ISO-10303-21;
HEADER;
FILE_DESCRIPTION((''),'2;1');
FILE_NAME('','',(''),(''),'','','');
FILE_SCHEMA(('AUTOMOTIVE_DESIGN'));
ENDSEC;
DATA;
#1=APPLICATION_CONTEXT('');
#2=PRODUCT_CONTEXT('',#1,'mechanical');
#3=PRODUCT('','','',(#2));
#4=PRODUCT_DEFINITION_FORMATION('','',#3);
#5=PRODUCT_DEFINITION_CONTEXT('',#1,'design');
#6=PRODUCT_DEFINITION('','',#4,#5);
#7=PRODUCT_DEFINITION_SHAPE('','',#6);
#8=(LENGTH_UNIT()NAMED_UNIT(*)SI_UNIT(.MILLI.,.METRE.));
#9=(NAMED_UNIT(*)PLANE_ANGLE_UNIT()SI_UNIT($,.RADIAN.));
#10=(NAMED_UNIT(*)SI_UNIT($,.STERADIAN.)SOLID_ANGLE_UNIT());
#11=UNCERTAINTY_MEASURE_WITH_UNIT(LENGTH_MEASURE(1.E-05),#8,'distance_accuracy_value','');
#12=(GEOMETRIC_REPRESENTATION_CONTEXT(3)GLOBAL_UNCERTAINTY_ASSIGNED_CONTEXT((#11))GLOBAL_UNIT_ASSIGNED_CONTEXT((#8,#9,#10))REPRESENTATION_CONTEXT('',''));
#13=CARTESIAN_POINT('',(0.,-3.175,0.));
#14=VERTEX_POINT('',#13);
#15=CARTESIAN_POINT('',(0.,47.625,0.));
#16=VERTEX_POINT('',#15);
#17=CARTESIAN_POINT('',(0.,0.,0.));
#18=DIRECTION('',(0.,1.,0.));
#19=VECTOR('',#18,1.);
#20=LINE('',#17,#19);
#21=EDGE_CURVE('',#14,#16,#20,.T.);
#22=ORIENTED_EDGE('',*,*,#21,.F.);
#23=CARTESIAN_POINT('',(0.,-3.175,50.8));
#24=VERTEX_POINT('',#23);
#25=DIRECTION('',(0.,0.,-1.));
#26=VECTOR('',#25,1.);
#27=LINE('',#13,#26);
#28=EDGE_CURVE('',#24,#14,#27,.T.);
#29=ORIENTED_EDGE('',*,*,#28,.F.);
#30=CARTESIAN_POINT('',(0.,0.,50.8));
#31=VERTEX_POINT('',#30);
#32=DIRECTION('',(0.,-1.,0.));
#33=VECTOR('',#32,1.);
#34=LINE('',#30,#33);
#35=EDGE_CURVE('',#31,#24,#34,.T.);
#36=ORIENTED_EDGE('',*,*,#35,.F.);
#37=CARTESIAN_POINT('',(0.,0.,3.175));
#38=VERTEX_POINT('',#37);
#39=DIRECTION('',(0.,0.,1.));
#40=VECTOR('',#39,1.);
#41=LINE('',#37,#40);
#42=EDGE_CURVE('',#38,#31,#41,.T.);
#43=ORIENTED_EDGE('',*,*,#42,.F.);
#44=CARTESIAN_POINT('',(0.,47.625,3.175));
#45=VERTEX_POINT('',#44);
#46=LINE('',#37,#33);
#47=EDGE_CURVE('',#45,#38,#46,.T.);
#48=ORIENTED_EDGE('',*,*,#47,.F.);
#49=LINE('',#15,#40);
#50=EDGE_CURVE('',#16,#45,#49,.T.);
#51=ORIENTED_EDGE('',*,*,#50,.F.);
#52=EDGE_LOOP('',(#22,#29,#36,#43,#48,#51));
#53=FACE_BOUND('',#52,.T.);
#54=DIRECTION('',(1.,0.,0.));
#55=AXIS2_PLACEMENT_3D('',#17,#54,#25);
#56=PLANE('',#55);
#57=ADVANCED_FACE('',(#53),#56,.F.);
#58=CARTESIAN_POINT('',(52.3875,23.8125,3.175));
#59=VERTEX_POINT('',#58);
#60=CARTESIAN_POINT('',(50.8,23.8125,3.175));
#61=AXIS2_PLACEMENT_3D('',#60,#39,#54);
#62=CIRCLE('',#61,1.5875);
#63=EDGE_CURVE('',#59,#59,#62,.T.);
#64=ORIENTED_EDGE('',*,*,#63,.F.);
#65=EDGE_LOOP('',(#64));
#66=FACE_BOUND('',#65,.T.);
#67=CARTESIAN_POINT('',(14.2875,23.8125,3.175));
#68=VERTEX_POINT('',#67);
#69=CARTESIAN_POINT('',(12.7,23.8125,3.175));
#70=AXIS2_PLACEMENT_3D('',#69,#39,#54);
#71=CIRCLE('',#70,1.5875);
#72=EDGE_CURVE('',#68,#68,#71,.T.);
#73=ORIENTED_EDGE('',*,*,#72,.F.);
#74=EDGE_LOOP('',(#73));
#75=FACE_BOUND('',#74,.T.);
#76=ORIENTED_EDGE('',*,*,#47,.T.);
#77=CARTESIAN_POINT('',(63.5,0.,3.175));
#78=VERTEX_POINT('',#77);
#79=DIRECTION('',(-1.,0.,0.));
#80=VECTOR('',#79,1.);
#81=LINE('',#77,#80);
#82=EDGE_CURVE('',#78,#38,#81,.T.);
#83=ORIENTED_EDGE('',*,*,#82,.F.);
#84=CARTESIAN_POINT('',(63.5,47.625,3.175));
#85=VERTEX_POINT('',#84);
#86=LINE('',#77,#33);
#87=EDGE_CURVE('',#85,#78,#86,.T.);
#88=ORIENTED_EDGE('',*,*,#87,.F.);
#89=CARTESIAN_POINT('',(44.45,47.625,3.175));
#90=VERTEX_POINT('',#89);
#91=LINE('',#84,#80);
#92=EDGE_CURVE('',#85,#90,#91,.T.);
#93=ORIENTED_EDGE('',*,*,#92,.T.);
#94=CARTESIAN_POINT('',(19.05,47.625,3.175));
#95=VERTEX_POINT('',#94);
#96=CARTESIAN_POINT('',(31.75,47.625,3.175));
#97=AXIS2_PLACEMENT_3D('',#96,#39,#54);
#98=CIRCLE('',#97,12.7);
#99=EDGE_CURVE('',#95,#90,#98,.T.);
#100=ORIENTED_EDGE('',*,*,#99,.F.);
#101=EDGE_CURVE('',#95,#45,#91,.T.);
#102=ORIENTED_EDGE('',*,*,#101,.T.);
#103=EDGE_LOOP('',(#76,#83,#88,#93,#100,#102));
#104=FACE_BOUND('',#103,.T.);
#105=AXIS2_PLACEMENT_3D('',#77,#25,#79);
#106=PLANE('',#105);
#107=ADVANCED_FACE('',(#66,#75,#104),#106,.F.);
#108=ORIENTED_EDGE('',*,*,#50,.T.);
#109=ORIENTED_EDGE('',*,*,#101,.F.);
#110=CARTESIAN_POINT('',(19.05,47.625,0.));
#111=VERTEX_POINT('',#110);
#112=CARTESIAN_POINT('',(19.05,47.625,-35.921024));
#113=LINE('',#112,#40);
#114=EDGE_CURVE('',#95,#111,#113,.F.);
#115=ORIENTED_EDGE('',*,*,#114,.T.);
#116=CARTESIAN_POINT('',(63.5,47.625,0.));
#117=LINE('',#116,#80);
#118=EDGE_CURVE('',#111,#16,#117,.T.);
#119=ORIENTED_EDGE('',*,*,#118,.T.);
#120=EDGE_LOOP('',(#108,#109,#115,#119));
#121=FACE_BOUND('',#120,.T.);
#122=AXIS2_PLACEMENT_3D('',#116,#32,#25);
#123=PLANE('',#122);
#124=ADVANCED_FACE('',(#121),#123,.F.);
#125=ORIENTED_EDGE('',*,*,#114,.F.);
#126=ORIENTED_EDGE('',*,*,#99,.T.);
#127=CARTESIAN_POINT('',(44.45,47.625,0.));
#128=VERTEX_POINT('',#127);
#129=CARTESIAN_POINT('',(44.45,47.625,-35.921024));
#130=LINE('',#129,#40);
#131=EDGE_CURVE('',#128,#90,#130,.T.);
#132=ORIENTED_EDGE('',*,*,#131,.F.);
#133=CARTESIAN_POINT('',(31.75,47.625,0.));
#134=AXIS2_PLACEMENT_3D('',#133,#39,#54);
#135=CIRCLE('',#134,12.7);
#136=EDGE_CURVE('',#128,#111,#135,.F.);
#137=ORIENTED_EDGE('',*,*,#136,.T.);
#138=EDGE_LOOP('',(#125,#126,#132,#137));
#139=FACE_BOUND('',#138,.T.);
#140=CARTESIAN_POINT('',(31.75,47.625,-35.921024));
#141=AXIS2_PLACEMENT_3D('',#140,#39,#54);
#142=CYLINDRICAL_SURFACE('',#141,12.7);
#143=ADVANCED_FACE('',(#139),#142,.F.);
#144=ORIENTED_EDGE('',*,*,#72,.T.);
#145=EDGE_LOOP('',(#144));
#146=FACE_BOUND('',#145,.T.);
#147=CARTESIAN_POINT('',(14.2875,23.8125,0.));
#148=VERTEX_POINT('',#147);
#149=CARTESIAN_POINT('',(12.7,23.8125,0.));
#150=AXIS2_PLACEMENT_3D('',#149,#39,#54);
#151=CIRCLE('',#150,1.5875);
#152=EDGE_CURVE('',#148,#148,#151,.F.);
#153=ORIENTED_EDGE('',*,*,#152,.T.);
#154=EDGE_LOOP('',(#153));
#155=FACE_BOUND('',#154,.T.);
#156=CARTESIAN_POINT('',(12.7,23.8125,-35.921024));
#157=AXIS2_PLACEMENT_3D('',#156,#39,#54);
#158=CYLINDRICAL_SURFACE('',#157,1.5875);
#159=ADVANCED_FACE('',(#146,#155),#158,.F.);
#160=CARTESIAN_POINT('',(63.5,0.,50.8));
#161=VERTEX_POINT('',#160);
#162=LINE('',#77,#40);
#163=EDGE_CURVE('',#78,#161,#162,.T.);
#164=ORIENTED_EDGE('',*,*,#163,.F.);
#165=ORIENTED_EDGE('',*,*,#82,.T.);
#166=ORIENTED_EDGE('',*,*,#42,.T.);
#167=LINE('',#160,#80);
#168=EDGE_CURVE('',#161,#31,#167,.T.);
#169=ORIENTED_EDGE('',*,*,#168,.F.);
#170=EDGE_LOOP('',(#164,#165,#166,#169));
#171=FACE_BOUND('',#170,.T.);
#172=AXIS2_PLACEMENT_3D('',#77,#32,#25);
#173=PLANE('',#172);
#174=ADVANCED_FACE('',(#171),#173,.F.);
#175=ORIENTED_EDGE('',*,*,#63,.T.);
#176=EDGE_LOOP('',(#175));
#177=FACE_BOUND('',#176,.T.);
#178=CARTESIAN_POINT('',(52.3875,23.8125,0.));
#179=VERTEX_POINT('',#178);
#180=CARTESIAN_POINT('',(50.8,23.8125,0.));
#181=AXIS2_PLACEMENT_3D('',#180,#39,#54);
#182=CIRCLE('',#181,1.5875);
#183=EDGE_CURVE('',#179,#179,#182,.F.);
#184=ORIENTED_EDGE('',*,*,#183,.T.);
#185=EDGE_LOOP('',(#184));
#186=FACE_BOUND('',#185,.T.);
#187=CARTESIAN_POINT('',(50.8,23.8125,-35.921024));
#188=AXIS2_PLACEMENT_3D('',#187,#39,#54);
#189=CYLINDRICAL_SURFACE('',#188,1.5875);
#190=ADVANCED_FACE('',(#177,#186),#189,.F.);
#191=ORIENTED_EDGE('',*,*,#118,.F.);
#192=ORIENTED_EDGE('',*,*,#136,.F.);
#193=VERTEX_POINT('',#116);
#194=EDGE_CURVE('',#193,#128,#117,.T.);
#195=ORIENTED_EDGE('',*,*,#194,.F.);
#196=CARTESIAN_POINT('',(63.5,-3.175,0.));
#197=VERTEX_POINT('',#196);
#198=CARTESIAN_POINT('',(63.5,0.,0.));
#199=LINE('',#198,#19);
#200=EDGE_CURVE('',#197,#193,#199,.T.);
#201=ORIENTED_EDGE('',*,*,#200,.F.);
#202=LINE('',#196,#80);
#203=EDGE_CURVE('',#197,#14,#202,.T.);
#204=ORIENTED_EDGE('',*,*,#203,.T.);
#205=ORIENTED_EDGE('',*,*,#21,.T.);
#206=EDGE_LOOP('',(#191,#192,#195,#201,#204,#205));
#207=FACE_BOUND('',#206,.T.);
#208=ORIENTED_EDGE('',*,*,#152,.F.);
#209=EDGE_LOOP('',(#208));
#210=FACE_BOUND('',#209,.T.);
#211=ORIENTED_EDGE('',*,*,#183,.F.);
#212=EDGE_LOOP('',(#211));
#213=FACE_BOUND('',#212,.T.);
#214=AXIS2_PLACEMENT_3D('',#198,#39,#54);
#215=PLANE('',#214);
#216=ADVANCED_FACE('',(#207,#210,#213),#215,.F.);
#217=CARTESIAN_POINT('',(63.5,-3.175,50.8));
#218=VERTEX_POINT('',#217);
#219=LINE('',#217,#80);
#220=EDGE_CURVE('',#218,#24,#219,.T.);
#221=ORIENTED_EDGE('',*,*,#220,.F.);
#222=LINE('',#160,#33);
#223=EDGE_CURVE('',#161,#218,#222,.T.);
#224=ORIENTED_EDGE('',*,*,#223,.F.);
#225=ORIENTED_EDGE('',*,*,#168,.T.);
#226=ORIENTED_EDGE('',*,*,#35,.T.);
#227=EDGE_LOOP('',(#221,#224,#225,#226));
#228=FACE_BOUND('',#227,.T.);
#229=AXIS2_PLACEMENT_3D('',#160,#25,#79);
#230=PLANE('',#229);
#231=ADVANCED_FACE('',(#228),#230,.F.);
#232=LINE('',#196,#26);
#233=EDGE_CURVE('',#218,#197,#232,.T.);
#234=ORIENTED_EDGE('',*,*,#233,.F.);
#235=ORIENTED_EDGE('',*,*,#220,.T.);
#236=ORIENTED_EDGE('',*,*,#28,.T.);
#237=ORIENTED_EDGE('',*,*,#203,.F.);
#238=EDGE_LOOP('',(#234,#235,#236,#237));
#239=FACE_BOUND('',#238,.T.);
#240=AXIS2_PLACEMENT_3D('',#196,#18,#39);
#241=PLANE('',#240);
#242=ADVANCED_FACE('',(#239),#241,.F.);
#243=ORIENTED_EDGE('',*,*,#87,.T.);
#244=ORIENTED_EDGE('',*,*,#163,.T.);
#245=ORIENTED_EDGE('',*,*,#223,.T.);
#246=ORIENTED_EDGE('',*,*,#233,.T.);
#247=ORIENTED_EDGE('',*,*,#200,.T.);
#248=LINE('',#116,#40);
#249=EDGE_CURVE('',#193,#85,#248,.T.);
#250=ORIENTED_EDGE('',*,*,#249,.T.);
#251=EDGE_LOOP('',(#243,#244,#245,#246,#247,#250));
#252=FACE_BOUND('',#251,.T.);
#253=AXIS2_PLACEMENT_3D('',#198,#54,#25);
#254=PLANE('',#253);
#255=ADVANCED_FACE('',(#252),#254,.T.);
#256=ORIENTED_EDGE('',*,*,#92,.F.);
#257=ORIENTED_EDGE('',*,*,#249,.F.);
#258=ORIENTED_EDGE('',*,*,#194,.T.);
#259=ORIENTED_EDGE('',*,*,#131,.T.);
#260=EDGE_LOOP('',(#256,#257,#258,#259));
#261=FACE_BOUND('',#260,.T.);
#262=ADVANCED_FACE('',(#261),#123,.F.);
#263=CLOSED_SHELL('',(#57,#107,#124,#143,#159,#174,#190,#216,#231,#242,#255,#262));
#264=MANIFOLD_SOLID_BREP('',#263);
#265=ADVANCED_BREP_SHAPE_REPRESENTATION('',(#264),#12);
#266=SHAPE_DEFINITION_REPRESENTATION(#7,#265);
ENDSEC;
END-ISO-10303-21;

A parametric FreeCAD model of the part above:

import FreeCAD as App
import Part
import Sketcher
Q = App.Units.Quantity


def add_polygon(sketch, points):
    """Adds a closed chain of lines whose ends are joined by coincident constraints."""
    first, n = sketch.GeometryCount, len(points)
    for a, b in zip(points, points[1:] + points[:1]):
        sketch.addGeometry(Part.LineSegment(App.Vector(*a, 0), App.Vector(*b, 0)), False)
    for i in range(n):
        sketch.addConstraint(Sketcher.Constraint("Coincident", first + i, 2, first + (i + 1) % n, 1))

doc = App.newDocument("Part")
params = doc.addObject("Spreadsheet::Sheet", "Params")
for row, (alias, value) in enumerate([
    ("sketch1_width", "2 in"),
    ("sketch1_width2", "0.125 in"),
    ("pad1_length", "2.5 in"),
    ("sketch2_diameter", "1 in"),
    ("sketch2_diameter2", "0.125 in"),
    ("pocket1_length", "0.125 in"),
], start=1):
    params.set(f"A{row}", alias)
    params.set(f"B{row}", "=" + value)
    params.setAlias(f"B{row}", alias)

body = doc.addObject("PartDesign::Body", "Body")

sketch1 = body.newObject("Sketcher::SketchObject", "Sketch")
sketch1.AttachmentSupport = (doc.getObject("YZ_Plane"), [""])
sketch1.MapMode = "FlatFace"
add_polygon(sketch1, [(0, 3.2), (0, 50.8), (-3.2, 50.8), (-3.2, 0), (47.6, 0), (47.6, 3.2)])
sketch1.addConstraint(Sketcher.Constraint("Vertical", 0))
sketch1.addConstraint(Sketcher.Constraint("Horizontal", 1))
sketch1.addConstraint(Sketcher.Constraint("Vertical", 2))
sketch1.addConstraint(Sketcher.Constraint("Horizontal", 3))
sketch1.addConstraint(Sketcher.Constraint("Vertical", 4))
sketch1.addConstraint(Sketcher.Constraint("Horizontal", 5))
sketch1.addConstraint(Sketcher.Constraint("PointOnObject", 0, 2, -2))
sketch1.addConstraint(Sketcher.Constraint("PointOnObject", 2, 2, -1))
sketch1.addConstraint(Sketcher.Constraint("Equal", 5, 0))
sketch1.addConstraint(Sketcher.Constraint("Equal", 3, 2))
sketch1.addConstraint(Sketcher.Constraint("DistanceX", 3, 1, 3, 2, Q("2 in")))
sketch1.addConstraint(Sketcher.Constraint("DistanceX", 1, 2, 1, 1, Q("0.125 in")))
sketch1.setExpression("Constraints[16]", "Params.sketch1_width")
sketch1.setExpression("Constraints[17]", "Params.sketch1_width2")
pad1 = body.newObject("PartDesign::Pad", "Pad")
pad1.Profile = sketch1
pad1.setExpression("Length", "Params.pad1_length")

sketch2 = body.newObject("Sketcher::SketchObject", "Sketch001")
sketch2.AttachmentSupport = (doc.getObject("XY_Plane"), [""])
sketch2.MapMode = "FlatFace"
sketch2.AttachmentOffset = App.Placement(App.Vector(0, 0, 0.125 * 25.4), App.Rotation())
sketch2.addGeometry(Part.Circle(App.Vector(31.8, 47.6, 0), App.Vector(0, 0, 1), 12.7), False)
sketch2.addGeometry(Part.Circle(App.Vector(12.7, 23.8, 0), App.Vector(0, 0, 1), 1.6), False)
sketch2.addGeometry(Part.Circle(App.Vector(50.8, 23.8, 0), App.Vector(0, 0, 1), 1.6), False)
sketch2.addConstraint(Sketcher.Constraint("Equal", 1, 2))
sketch2.addConstraint(Sketcher.Constraint("Horizontal", 1, 3, 2, 3))
sketch2.addConstraint(Sketcher.Constraint("Diameter", 0, Q("1 in")))
sketch2.addConstraint(Sketcher.Constraint("Diameter", 1, Q("0.125 in")))
sketch2.addConstraint(Sketcher.Constraint("DistanceX", -1, 1, 2, 3, Q("2 in")))
sketch2.addConstraint(Sketcher.Constraint("DistanceX", -1, 1, 1, 3, Q("0.5 in")))
sketch2.addConstraint(Sketcher.Constraint("DistanceX", -1, 1, 0, 3, Q("1.25 in")))
sketch2.addConstraint(Sketcher.Constraint("DistanceY", -1, 1, 0, 3, Q("1.875 in")))
sketch2.addConstraint(Sketcher.Constraint("DistanceY", -1, 1, 1, 3, Q("0.9375 in")))
sketch2.setExpression("Constraints[2]", "Params.sketch2_diameter")
sketch2.setExpression("Constraints[3]", "Params.sketch2_diameter2")
pocket1 = body.newObject("PartDesign::Pocket", "Pocket")
pocket1.Profile = sketch2
pocket1.setExpression("Length", "Params.pocket1_length")

doc.recompute()
